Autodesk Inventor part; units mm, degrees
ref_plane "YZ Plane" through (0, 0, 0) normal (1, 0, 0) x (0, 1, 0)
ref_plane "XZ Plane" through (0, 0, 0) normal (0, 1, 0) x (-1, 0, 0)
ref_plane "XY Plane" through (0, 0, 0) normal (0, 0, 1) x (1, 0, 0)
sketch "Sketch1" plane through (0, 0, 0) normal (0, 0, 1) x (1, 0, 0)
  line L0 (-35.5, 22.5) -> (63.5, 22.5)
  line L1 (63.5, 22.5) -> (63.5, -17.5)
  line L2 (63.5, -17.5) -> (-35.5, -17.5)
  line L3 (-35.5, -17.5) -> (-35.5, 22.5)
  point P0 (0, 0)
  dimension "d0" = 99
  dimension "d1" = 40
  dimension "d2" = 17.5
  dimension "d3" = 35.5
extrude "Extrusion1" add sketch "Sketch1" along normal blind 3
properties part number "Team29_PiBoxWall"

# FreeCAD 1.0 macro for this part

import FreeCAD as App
import Part
import Sketcher
Q = App.Units.Quantity

doc = App.newDocument("Part")
body = doc.addObject("PartDesign::Body", "Body")

# Sketch on XY plane
sketch1 = doc.addObject("Sketcher::SketchObject", "Sketch")
body.addObject(sketch1)
sketch1.AttachmentSupport = (doc.XY_Plane, [""])
sketch1.MapMode = "FlatFace"
sketch1.addGeometry(Part.LineSegment(App.Vector(63.5, 22.5, 0), App.Vector(-35.5, 22.5, 0)), False)
sketch1.addGeometry(Part.LineSegment(App.Vector(-35.5, 22.5, 0), App.Vector(-35.5, -17.5, 0)), False)
sketch1.addGeometry(Part.LineSegment(App.Vector(-35.5, -17.5, 0), App.Vector(63.5, -17.5, 0)), False)
sketch1.addGeometry(Part.LineSegment(App.Vector(63.5, -17.5, 0), App.Vector(63.5, 22.5, 0)), False)
sketch1.addConstraint(Sketcher.Constraint("Coincident", 0, 2, 1, 1))
sketch1.addConstraint(Sketcher.Constraint("Coincident", 1, 2, 2, 1))
sketch1.addConstraint(Sketcher.Constraint("Coincident", 2, 2, 3, 1))
sketch1.addConstraint(Sketcher.Constraint("Coincident", 3, 2, 0, 1))
sketch1.addConstraint(Sketcher.Constraint("Horizontal", 0))
sketch1.addConstraint(Sketcher.Constraint("Vertical", 1))
sketch1.addConstraint(Sketcher.Constraint("Horizontal", 2))
sketch1.addConstraint(Sketcher.Constraint("Vertical", 3))
sketch1.addConstraint(Sketcher.Constraint("DistanceX", 0, 2, 0, 1, Q("99 mm")))
sketch1.addConstraint(Sketcher.Constraint("DistanceY", 1, 2, 1, 1, Q("40 mm")))
sketch1.addConstraint(Sketcher.Constraint("DistanceX", 0, 2, -1, 1, Q("35.5 mm")))
sketch1.addConstraint(Sketcher.Constraint("DistanceY", 1, 2, -1, 1, Q("17.5 mm")))
pad1 = doc.addObject("PartDesign::Pad", "Pad")
body.addObject(pad1)
pad1.Profile = sketch1
pad1.Length = 3

doc.recompute()
